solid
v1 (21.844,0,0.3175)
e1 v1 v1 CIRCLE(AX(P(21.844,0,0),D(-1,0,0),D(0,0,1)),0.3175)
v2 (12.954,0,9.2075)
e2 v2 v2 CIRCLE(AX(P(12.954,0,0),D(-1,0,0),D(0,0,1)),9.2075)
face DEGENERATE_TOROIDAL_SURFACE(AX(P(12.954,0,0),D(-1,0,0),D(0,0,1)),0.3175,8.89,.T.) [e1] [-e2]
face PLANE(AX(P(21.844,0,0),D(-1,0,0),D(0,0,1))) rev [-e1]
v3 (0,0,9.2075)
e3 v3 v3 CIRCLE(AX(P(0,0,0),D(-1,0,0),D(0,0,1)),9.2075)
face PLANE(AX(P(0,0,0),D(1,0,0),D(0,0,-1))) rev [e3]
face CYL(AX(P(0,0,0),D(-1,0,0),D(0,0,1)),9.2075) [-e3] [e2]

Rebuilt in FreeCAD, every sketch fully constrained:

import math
import FreeCAD as App
import Part
import Sketcher

V = App.Vector
Q = App.Units.Quantity

doc = App.newDocument("Part")
params = doc.addObject("Spreadsheet::Sheet", "Params")
for row, (alias, value) in enumerate([
    ("sketch1_radius", "0.35 in"),
    ("sketch1_width", "0.86 in"),
    ("revolution_angle", "360 deg"),
], start=1):
    params.set(f"A{row}", alias)
    params.set(f"B{row}", "=" + value)
    params.setAlias(f"B{row}", alias)

body = doc.addObject("PartDesign::Body", "Body")

sketch1 = body.newObject("Sketcher::SketchObject", "Sketch")
sketch1.AttachmentSupport = (doc.getObject("XZ_Plane"), [""])
sketch1.MapMode = "FlatFace"
sketch1.addGeometry(Part.LineSegment(V(0, 0, 0), V(21.844, 0, 0)), False)
sketch1.addGeometry(Part.LineSegment(V(21.844, 0, 0), V(21.844, -0.3175, 0)), False)
sketch1.addGeometry(Part.ArcOfCircle(Part.Circle(V(12.954, -0.3175, 0), V(0, 0, 1), 8.89), math.radians(-90), math.radians(0)), False)
sketch1.addGeometry(Part.LineSegment(V(12.954, -9.2075, 0), V(0, -9.2075, 0)), False)
sketch1.addGeometry(Part.LineSegment(V(0, -9.2075, 0), V(0, 0, 0)), False)
sketch1.addConstraint(Sketcher.Constraint("Coincident", 0, 2, 1, 1))
sketch1.addConstraint(Sketcher.Constraint("Tangent", 1, 2, 2, 2))
sketch1.addConstraint(Sketcher.Constraint("Tangent", 2, 1, 3, 1))
sketch1.addConstraint(Sketcher.Constraint("Coincident", 3, 2, 4, 1))
sketch1.addConstraint(Sketcher.Constraint("Coincident", 4, 2, 0, 1))
sketch1.addConstraint(Sketcher.Constraint("Horizontal", 0))
sketch1.addConstraint(Sketcher.Constraint("Vertical", 1))
sketch1.addConstraint(Sketcher.Constraint("Horizontal", 3))
sketch1.addConstraint(Sketcher.Constraint("Vertical", 4))
sketch1.addConstraint(Sketcher.Constraint("Coincident", 4, 2, -1, 1))
sketch1.addConstraint(Sketcher.Constraint("Radius", 2, Q("0.35 in")))
sketch1.addConstraint(Sketcher.Constraint("DistanceX", 0, 1, 0, 2, Q("0.86 in")))
sketch1.addConstraint(Sketcher.Constraint("DistanceY", 1, 2, 1, 1, Q("0.0125 in")))
sketch1.setExpression("Constraints[10]", "Params.sketch1_radius")
sketch1.setExpression("Constraints[11]", "Params.sketch1_width")
revolution = body.newObject("PartDesign::Revolution", "Revolution")
revolution.Profile = sketch1
revolution.ReferenceAxis = (sketch1, ["H_Axis"])
revolution.setExpression("Angle", "Params.revolution_angle")

doc.recompute()
